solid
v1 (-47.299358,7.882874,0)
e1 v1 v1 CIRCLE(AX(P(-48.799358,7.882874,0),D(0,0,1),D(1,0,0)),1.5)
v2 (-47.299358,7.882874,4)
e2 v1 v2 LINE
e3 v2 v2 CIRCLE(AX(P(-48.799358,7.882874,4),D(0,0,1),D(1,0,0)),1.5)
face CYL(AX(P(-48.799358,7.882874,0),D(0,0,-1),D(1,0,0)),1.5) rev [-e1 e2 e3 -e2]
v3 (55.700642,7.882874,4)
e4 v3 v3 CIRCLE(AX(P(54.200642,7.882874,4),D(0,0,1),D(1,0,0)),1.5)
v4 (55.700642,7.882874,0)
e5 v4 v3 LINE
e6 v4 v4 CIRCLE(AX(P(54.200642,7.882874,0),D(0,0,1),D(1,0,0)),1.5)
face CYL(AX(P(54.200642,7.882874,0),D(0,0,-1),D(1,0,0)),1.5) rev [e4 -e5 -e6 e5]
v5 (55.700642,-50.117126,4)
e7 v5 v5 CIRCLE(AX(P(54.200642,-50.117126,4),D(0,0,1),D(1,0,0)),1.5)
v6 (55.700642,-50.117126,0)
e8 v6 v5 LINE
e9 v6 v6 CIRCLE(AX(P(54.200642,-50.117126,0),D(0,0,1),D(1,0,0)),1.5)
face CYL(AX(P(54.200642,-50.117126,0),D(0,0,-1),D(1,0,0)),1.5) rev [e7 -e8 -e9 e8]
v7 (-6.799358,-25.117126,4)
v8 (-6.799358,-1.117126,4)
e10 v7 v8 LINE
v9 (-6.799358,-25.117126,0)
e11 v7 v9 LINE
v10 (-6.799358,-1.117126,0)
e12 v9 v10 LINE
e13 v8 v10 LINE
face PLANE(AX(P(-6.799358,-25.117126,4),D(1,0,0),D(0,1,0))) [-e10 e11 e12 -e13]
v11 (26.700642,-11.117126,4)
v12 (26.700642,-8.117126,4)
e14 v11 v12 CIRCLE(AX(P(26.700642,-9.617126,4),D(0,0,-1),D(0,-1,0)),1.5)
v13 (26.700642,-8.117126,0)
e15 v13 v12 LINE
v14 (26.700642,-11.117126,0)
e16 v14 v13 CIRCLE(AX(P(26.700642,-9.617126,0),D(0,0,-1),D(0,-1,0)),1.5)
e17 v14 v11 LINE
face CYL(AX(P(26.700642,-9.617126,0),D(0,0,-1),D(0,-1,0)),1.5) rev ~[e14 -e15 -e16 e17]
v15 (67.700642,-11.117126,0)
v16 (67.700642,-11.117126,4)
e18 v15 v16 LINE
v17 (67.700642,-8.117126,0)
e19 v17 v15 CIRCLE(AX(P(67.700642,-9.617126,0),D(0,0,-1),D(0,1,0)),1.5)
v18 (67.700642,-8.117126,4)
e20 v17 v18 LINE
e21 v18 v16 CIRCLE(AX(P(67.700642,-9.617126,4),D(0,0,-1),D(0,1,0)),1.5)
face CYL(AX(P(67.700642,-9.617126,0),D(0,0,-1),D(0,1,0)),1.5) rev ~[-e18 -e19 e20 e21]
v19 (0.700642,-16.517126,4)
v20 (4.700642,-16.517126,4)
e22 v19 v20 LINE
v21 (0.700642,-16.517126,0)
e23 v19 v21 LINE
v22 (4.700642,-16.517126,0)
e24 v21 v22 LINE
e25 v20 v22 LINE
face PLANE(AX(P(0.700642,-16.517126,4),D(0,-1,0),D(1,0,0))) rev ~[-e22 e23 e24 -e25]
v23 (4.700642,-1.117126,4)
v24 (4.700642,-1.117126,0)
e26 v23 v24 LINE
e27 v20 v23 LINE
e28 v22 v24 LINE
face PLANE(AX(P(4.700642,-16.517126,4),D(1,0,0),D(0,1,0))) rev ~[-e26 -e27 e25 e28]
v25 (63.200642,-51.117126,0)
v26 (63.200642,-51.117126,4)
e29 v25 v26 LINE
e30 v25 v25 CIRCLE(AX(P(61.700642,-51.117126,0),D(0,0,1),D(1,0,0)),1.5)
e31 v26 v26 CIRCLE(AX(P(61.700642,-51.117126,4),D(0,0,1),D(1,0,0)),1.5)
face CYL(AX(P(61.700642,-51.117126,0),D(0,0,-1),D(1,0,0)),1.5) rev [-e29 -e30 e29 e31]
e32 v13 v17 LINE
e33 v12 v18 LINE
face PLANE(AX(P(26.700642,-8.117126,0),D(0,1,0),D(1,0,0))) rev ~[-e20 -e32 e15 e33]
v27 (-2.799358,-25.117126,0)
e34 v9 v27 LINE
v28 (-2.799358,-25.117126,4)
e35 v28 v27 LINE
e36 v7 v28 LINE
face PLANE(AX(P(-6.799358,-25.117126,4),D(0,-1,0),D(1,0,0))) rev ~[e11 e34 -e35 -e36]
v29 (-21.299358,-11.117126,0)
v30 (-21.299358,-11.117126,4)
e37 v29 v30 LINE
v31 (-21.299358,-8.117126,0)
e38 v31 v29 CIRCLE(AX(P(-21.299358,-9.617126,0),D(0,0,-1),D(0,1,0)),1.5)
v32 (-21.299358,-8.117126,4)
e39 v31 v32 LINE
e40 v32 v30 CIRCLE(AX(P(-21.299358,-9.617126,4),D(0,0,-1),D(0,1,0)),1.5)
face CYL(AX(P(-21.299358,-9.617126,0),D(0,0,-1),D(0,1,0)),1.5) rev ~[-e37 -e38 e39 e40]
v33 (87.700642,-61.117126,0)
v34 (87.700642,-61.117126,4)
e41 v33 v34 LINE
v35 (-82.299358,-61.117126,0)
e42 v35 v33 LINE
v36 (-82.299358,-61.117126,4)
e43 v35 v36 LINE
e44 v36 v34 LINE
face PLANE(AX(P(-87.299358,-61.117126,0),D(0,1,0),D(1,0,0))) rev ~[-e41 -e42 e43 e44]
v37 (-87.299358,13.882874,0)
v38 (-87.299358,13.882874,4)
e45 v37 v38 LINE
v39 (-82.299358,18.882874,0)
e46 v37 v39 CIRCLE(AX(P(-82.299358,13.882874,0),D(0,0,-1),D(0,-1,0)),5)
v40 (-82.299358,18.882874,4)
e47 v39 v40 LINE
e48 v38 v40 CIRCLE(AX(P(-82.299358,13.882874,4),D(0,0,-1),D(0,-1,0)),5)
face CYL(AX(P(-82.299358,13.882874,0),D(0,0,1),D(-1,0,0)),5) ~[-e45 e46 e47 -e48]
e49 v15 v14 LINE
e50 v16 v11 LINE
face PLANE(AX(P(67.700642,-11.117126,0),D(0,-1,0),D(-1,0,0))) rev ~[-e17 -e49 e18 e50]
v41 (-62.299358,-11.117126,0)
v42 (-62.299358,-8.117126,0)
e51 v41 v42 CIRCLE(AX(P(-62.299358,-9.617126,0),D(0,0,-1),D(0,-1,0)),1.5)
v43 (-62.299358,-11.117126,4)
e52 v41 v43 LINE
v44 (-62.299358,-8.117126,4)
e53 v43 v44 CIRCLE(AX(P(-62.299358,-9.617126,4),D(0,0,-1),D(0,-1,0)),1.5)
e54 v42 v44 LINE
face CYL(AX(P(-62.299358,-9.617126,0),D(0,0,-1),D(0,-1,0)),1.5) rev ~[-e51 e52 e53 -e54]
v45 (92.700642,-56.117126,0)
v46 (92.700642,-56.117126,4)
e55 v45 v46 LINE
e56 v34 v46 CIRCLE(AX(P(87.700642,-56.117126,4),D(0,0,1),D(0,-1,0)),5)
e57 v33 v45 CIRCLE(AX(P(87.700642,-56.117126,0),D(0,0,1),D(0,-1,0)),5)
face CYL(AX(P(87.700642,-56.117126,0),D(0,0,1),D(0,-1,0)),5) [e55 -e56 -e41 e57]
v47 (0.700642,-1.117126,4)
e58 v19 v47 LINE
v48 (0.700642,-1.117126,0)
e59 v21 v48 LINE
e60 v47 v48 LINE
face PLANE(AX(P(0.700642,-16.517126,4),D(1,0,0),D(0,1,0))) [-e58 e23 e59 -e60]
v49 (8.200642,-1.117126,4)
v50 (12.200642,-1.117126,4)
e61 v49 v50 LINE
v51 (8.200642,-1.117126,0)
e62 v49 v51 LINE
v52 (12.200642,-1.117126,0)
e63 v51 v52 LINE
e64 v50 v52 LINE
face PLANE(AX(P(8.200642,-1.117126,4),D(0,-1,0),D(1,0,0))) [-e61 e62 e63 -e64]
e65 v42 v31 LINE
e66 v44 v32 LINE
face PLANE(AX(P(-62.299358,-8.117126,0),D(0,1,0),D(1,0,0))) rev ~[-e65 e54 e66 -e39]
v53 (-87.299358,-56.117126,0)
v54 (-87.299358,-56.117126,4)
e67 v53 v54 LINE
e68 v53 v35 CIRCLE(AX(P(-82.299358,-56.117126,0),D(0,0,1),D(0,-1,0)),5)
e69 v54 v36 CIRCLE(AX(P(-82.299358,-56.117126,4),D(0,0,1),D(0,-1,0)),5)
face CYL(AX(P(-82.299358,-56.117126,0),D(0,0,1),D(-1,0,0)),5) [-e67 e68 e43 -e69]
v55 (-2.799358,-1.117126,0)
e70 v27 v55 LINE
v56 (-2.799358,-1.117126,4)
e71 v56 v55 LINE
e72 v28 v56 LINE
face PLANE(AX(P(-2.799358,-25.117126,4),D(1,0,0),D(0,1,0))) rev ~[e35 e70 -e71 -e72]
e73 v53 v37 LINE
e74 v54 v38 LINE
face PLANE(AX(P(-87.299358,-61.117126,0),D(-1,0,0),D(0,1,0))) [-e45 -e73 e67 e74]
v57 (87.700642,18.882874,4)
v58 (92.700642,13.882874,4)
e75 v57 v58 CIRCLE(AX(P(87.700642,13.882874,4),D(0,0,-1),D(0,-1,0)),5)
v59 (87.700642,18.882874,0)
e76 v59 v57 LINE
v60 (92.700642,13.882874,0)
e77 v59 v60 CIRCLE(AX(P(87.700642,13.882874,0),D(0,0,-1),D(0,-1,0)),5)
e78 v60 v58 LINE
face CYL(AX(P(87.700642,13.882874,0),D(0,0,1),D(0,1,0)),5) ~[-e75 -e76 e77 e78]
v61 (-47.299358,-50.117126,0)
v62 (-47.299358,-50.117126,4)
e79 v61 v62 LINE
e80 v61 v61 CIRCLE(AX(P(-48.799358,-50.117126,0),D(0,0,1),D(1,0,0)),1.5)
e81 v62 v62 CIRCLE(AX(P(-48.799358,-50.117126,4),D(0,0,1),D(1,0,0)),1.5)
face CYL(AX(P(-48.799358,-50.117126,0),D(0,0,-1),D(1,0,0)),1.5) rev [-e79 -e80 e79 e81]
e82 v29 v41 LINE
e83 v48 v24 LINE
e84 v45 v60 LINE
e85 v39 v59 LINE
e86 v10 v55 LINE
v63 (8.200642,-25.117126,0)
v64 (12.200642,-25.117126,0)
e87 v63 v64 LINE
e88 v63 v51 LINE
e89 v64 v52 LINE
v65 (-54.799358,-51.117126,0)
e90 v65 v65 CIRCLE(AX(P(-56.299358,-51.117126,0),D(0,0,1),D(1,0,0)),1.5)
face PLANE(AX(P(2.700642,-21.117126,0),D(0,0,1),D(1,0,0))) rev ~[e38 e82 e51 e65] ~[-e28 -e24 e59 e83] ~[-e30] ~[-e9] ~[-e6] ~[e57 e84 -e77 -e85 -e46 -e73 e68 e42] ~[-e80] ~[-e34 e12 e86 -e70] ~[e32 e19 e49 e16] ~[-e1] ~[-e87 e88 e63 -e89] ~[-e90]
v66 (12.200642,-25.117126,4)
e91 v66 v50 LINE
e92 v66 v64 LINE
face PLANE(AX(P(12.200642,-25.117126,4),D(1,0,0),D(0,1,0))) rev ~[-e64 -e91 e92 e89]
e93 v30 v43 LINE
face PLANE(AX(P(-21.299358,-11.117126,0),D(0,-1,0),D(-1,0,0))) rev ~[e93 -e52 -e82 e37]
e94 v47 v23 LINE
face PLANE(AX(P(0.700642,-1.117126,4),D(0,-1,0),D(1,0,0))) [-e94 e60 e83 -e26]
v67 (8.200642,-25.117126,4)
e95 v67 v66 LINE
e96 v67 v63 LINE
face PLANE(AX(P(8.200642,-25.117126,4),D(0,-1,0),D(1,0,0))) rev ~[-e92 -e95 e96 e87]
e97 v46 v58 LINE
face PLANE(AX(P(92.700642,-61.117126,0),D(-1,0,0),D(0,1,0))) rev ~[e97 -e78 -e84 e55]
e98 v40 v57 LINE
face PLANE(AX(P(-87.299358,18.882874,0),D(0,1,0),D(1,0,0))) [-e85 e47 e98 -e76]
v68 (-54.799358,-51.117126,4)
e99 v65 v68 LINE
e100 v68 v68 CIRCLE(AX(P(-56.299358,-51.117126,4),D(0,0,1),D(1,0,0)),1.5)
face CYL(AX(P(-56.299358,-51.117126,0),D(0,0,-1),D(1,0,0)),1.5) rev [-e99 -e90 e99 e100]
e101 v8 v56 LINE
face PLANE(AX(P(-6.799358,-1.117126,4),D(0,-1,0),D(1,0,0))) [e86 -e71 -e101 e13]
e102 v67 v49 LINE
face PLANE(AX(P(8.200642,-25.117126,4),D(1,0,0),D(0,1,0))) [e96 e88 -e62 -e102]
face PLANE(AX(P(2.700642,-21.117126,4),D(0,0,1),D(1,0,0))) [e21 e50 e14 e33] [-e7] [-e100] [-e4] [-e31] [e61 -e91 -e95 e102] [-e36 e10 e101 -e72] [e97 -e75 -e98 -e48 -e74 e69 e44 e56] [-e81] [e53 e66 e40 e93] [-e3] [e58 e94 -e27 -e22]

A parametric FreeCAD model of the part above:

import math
import FreeCAD as App
import Part
import Sketcher


def edges_at(feature, points):
    """Names of the edges that pass closest to the given points."""
    edges = feature.Shape.Edges
    near = lambda p: min(range(len(edges)), key=lambda i: edges[i].distToShape(Part.Vertex(*p))[0])
    return sorted({f"Edge{near(p) + 1}" for p in points})


def add_polygon(sketch, points):
    """Adds a closed chain of lines whose ends are joined by coincident constraints."""
    first, n = sketch.GeometryCount, len(points)
    for a, b in zip(points, points[1:] + points[:1]):
        sketch.addGeometry(Part.LineSegment(App.Vector(*a, 0), App.Vector(*b, 0)), False)
    for i in range(n):
        sketch.addConstraint(Sketcher.Constraint("Coincident", first + i, 2, first + (i + 1) % n, 1))

doc = App.newDocument("Part")
body = doc.addObject("PartDesign::Body", "Body")

sketch1 = body.newObject("Sketcher::SketchObject", "Sketch")
sketch1.AttachmentSupport = (doc.getObject("XY_Plane"), [""])
sketch1.MapMode = "FlatFace"
add_polygon(sketch1, [(-87.3, 18.9), (-87.3, -61.1), (92.7, -61.1), (92.7, 18.9)])
sketch1.addGeometry(Part.Circle(App.Vector(-56.3, -51.1, 0), App.Vector(0, 0, 1), 1.5), False)
sketch1.addGeometry(Part.Circle(App.Vector(-48.8, -50.1, 0), App.Vector(0, 0, 1), 1.5), False)
sketch1.addGeometry(Part.Circle(App.Vector(54.2, -50.1, 0), App.Vector(0, 0, 1), 1.5), False)
sketch1.addGeometry(Part.Circle(App.Vector(61.7, -51.1, 0), App.Vector(0, 0, 1), 1.5), False)
sketch1.addGeometry(Part.ArcOfCircle(Part.Circle(App.Vector(-62.3, -9.6, 0), App.Vector(0, 0, 1), 1.5), math.radians(90), math.radians(270)), False)
sketch1.addGeometry(Part.LineSegment(App.Vector(-62.3, -8.1, 0), App.Vector(-21.3, -8.1, 0)), False)
sketch1.addGeometry(Part.ArcOfCircle(Part.Circle(App.Vector(-21.3, -9.6, 0), App.Vector(0, 0, 1), 1.5), math.radians(-90), math.radians(90)), False)
sketch1.addGeometry(Part.LineSegment(App.Vector(-21.3, -11.1, 0), App.Vector(-62.3, -11.1, 0)), False)
sketch1.addGeometry(Part.Circle(App.Vector(-48.8, 7.9, 0), App.Vector(0, 0, 1), 1.5), False)
sketch1.addGeometry(Part.ArcOfCircle(Part.Circle(App.Vector(26.7, -9.6, 0), App.Vector(0, 0, 1), 1.5), math.radians(90), math.radians(270)), False)
sketch1.addGeometry(Part.LineSegment(App.Vector(26.7, -8.1, 0), App.Vector(67.7, -8.1, 0)), False)
sketch1.addGeometry(Part.ArcOfCircle(Part.Circle(App.Vector(67.7, -9.6, 0), App.Vector(0, 0, 1), 1.5), math.radians(-90), math.radians(90)), False)
sketch1.addGeometry(Part.LineSegment(App.Vector(67.7, -11.1, 0), App.Vector(26.7, -11.1, 0)), False)
sketch1.addGeometry(Part.Circle(App.Vector(54.2, 7.9, 0), App.Vector(0, 0, 1), 1.5), False)
sketch1.addConstraint([
    Sketcher.Constraint("Tangent", 8, 1, 9, 1),
    Sketcher.Constraint("Tangent", 9, 2, 10, 2),
    Sketcher.Constraint("Tangent", 10, 1, 11, 1),
    Sketcher.Constraint("Tangent", 11, 2, 8, 2),
    Sketcher.Constraint("Tangent", 13, 1, 14, 1),
    Sketcher.Constraint("Tangent", 14, 2, 15, 2),
    Sketcher.Constraint("Tangent", 15, 1, 16, 1),
    Sketcher.Constraint("Tangent", 16, 2, 13, 2),
    Sketcher.Constraint("Vertical", 0),
    Sketcher.Constraint("Horizontal", 1),
    Sketcher.Constraint("Vertical", 2),
    Sketcher.Constraint("Horizontal", 3),
    Sketcher.Constraint("Horizontal", 9),
    Sketcher.Constraint("Horizontal", 11),
    Sketcher.Constraint("Horizontal", 14),
    Sketcher.Constraint("Horizontal", 16),
    Sketcher.Constraint("Equal", 4, 5),
    Sketcher.Constraint("Equal", 5, 6),
    Sketcher.Constraint("Equal", 6, 7),
    Sketcher.Constraint("Equal", 7, 8),
    Sketcher.Constraint("Equal", 10, 12),
    Sketcher.Constraint("Equal", 12, 13),
    Sketcher.Constraint("Equal", 15, 17),
    Sketcher.Constraint("Horizontal", 5, 3, 6, 3),
    Sketcher.Constraint("Horizontal", 4, 3, 7, 3),
    Sketcher.Constraint("Horizontal", 10, 3, 13, 3),
    Sketcher.Constraint("Horizontal", 12, 3, 17, 3),
    Sketcher.Constraint("Vertical", 5, 3, 12, 3),
    Sketcher.Constraint("Vertical", 6, 3, 17, 3),
    Sketcher.Constraint("Equal", 11, 14),
    Sketcher.Constraint("Diameter", 4, 3.0),
    Sketcher.Constraint("DistanceX", 1, 1, 1, 2, 180.0),
    Sketcher.Constraint("DistanceX", 9, 1, 9, 2, 41.0),
    Sketcher.Constraint("DistanceY", 0, 2, 0, 1, 80.0),
    Sketcher.Constraint("DistanceY", 4, 3, 5, 3, 1.0),
    Sketcher.Constraint("DistanceX", 5, 3, 6, 3, 103.0),
    Sketcher.Constraint("DistanceX", 4, 3, 7, 3, 118.0),
    Sketcher.Constraint("DistanceX", 8, 3, 4, 3, 6.0),
    Sketcher.Constraint("DistanceY", 5, 3, 12, 3, 58.0),
    Sketcher.Constraint("DistanceX", 10, 3, 13, 3, 48.0),
    Sketcher.Constraint("DistanceX", 0, 2, 4, 3, 31.0),
    Sketcher.Constraint("DistanceY", 0, 2, 4, 3, 10.0),
    Sketcher.Constraint("DistanceY", 8, 1, 12, 3, 16.0),
    Sketcher.Constraint("DistanceX", 4, 3, 5, 3, 7.5),
    Sketcher.Constraint("DistanceX", 4, 3, -1, 1, 56.299358),
    Sketcher.Constraint("DistanceY", 4, 3, -1, 1, 51.117126),
])
pad1 = body.newObject("PartDesign::Pad", "Pad")
pad1.Profile = sketch1
pad1.Length = 4

sketch2 = body.newObject("Sketcher::SketchObject", "Sketch001")
sketch2.AttachmentSupport = (doc.getObject("XY_Plane"), [""])
sketch2.MapMode = "FlatFace"
sketch2.AttachmentOffset = App.Placement(App.Vector(0, 0, 4), App.Rotation())
add_polygon(sketch2, [(-6.8, -1.1), (-6.8, -25.1), (-2.8, -25.1), (-2.8, -1.1)])
add_polygon(sketch2, [(0.7, -1.1), (0.7, -16.5), (4.7, -16.5), (4.7, -1.1)])
add_polygon(sketch2, [(8.2, -1.1), (8.2, -25.1), (12.2, -25.1), (12.2, -1.1)])
sketch2.addConstraint([
    Sketcher.Constraint("Vertical", 0),
    Sketcher.Constraint("Horizontal", 1),
    Sketcher.Constraint("Vertical", 2),
    Sketcher.Constraint("Horizontal", 3),
    Sketcher.Constraint("Vertical", 4),
    Sketcher.Constraint("Horizontal", 5),
    Sketcher.Constraint("Vertical", 6),
    Sketcher.Constraint("Horizontal", 7),
    Sketcher.Constraint("Vertical", 8),
    Sketcher.Constraint("Horizontal", 9),
    Sketcher.Constraint("Vertical", 10),
    Sketcher.Constraint("Horizontal", 11),
    Sketcher.Constraint("Horizontal", 3, 2, 6, 2),
    Sketcher.Constraint("Horizontal", 1, 2, 8, 2),
    Sketcher.Constraint("Horizontal", 7, 2, 10, 2),
    Sketcher.Constraint("Equal", 3, 5),
    Sketcher.Constraint("Equal", 7, 9),
    Sketcher.Constraint("DistanceX", 1, 1, 1, 2, 4.0),
    Sketcher.Constraint("DistanceY", 0, 2, 0, 1, 24.0),
    Sketcher.Constraint("DistanceY", 4, 2, 4, 1, 15.4),
    Sketcher.Constraint("DistanceX", 1, 2, 8, 2, 11.0),
    Sketcher.Constraint("DistanceX", 1, 2, 4, 2, 3.5),
    Sketcher.Constraint("DistanceX", 0, 2, -1, 1, 6.799358),
    Sketcher.Constraint("DistanceY", 0, 2, -1, 1, 25.117126),
])
pocket1 = body.newObject("PartDesign::Pocket", "Pocket")
pocket1.Profile = sketch2
pocket1.Length = 4
doc.recompute()

fillet = body.newObject("PartDesign::Fillet", "Fillet")
fillet.Base = (pocket1, edges_at(pocket1, [
    (-87.299, 18.883, 2),
    (92.701, 18.883, 2),
    (92.701, -61.117, 2),
    (-87.299, -61.117, 2),
]))
fillet.Radius = 5

doc.recompute()
